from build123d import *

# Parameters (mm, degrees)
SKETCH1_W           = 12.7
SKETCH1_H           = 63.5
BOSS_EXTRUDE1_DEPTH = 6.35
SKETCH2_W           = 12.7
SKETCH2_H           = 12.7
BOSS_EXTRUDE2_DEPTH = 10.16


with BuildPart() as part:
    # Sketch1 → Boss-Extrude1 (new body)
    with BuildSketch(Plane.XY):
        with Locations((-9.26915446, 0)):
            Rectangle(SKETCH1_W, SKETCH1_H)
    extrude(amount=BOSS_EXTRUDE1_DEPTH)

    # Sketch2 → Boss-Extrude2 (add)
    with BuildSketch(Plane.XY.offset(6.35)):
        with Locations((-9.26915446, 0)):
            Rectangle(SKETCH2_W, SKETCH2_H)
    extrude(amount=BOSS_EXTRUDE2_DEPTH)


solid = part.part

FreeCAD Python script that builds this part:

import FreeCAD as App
import Part
import Sketcher

V = App.Vector
Q = App.Units.Quantity


def add_polygon(sketch, points):
    """Adds a closed chain of lines whose ends are joined by coincident constraints."""
    first, n = sketch.GeometryCount, len(points)
    for a, b in zip(points, points[1:] + points[:1]):
        sketch.addGeometry(Part.LineSegment(App.Vector(*a, 0), App.Vector(*b, 0)), False)
    for i in range(n):
        sketch.addConstraint(Sketcher.Constraint("Coincident", first + i, 2, first + (i + 1) % n, 1))

doc = App.newDocument("Part")
params = doc.addObject("Spreadsheet::Sheet", "Params")
for row, (alias, value) in enumerate([
    ("sketch1_width", "0.5 in"),
    ("sketch1_height", "2.5 in"),
    ("pad1_length", "0.25 in"),
    ("sketch2_width", "0.5 in"),
    ("pad2_length", "0.4 in"),
], start=1):
    params.set(f"A{row}", alias)
    params.set(f"B{row}", "=" + value)
    params.setAlias(f"B{row}", alias)

body = doc.addObject("PartDesign::Body", "Body")

sketch1 = doc.addObject("Sketcher::SketchObject", "Sketch")
body.addObject(sketch1)
sketch1.AttachmentSupport = (doc.XY_Plane, [""])
sketch1.MapMode = "FlatFace"
add_polygon(sketch1, [(-16, 32), (-16, -32), (-3, -32), (-3, 32)])
sketch1.addConstraint(Sketcher.Constraint("Vertical", 0))
sketch1.addConstraint(Sketcher.Constraint("Horizontal", 1))
sketch1.addConstraint(Sketcher.Constraint("Vertical", 2))
sketch1.addConstraint(Sketcher.Constraint("Horizontal", 3))
sketch1.addConstraint(Sketcher.Constraint("DistanceX", 1, 1, 1, 2, Q("0.5 in")))
sketch1.addConstraint(Sketcher.Constraint("DistanceY", 0, 2, 0, 1, Q("2.5 in")))
sketch1.addConstraint(Sketcher.Constraint("DistanceY", 0, 2, -1, 1, Q("1.25 in")))
sketch1.addConstraint(Sketcher.Constraint("DistanceX", 0, 2, -1, 1, Q("15.619154 mm")))
sketch1.setExpression("Constraints[8]", "Params.sketch1_width")
sketch1.setExpression("Constraints[9]", "Params.sketch1_height")
pad1 = doc.addObject("PartDesign::Pad", "Pad")
body.addObject(pad1)
pad1.Profile = sketch1
pad1.setExpression("Length", "Params.pad1_length")

sketch2 = doc.addObject("Sketcher::SketchObject", "Sketch001")
body.addObject(sketch2)
sketch2.AttachmentSupport = (doc.XY_Plane, [""])
sketch2.MapMode = "FlatFace"
sketch2.AttachmentOffset = App.Placement(V(0, 0, 0.25 * 25.4), App.Rotation())
add_polygon(sketch2, [(-16, 6), (-16, -6), (-3, -6), (-3, 6)])
sketch2.addConstraint(Sketcher.Constraint("Vertical", 0))
sketch2.addConstraint(Sketcher.Constraint("Horizontal", 1))
sketch2.addConstraint(Sketcher.Constraint("Vertical", 2))
sketch2.addConstraint(Sketcher.Constraint("Horizontal", 3))
sketch2.addConstraint(Sketcher.Constraint("Equal", 3, 0))
sketch2.addConstraint(Sketcher.Constraint("DistanceX", 1, 1, 1, 2, Q("0.5 in")))
sketch2.addConstraint(Sketcher.Constraint("DistanceY", 0, 2, -1, 1, Q("0.25 in")))
sketch2.addConstraint(Sketcher.Constraint("DistanceX", 0, 2, -1, 1, Q("15.619154 mm")))
sketch2.setExpression("Constraints[9]", "Params.sketch2_width")
pad2 = doc.addObject("PartDesign::Pad", "Pad001")
body.addObject(pad2)
pad2.Profile = sketch2
pad2.setExpression("Length", "Params.pad2_length")

doc.recompute()
